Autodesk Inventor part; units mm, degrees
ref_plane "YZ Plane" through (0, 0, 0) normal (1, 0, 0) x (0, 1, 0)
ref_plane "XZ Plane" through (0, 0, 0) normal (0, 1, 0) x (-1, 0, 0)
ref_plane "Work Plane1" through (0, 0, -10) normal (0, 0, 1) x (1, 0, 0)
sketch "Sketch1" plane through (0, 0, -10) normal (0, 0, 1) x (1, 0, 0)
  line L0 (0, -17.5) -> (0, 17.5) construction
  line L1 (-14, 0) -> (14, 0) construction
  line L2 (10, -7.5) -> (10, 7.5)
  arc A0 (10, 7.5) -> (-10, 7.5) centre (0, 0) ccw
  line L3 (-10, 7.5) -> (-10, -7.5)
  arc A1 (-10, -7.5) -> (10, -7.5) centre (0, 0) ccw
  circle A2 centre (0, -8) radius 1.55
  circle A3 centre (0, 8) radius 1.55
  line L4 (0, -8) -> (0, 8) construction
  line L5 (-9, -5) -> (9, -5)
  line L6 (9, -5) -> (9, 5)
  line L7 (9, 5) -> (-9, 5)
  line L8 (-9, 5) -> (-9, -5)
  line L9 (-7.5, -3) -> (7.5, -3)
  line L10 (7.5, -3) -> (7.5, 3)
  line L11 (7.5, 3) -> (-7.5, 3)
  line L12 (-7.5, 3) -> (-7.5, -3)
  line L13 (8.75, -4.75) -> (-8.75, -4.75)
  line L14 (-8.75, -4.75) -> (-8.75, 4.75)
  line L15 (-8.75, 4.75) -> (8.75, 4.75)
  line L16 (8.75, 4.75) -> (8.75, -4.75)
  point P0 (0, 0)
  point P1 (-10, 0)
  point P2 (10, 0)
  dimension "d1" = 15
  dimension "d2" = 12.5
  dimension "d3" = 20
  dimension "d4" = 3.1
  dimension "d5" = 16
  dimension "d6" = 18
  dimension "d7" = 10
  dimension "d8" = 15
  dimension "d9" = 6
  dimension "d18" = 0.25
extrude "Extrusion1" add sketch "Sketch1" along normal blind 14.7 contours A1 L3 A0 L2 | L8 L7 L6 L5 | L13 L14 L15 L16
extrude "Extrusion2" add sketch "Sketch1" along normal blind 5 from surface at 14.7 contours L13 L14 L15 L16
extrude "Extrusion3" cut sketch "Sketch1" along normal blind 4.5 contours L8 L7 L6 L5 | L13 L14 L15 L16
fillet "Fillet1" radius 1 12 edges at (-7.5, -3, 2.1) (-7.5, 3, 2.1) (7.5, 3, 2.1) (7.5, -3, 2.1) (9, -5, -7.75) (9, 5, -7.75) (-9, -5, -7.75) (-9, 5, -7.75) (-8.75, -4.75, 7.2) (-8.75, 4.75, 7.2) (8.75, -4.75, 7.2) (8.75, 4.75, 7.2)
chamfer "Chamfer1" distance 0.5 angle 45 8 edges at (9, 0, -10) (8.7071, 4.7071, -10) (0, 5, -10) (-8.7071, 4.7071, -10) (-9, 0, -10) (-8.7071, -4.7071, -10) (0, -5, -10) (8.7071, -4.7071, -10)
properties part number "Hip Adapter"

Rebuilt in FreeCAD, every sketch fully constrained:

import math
import FreeCAD as App
import Part
import Sketcher
Q = App.Units.Quantity


def edges_at(feature, points):
    """Names of the edges that pass closest to the given points."""
    edges = feature.Shape.Edges
    near = lambda p: min(range(len(edges)), key=lambda i: edges[i].distToShape(Part.Vertex(*p))[0])
    return sorted({f"Edge{near(p) + 1}" for p in points})

doc = App.newDocument("Part")
body = doc.addObject("PartDesign::Body", "Body")

# Sketch on XY plane
sketch1 = body.newObject("Sketcher::SketchObject", "Sketch")
sketch1.AttachmentSupport = (doc.getObject("XY_Plane"), [""])
sketch1.MapMode = "FlatFace"
sketch1.AttachmentOffset = App.Placement(App.Vector(0, 0, -10), App.Rotation())
sketch1.addGeometry([
    Part.ArcOfCircle(Part.Circle(App.Vector(0, 0, 0), App.Vector(0, 0, 1), 12.5), math.radians(-143), math.radians(-37)),  # 0
    Part.LineSegment(App.Vector(10, -7.5, 0), App.Vector(10, 7.5, 0)),  # 1
    Part.ArcOfCircle(Part.Circle(App.Vector(0, 0, 0), App.Vector(0, 0, 1), 12.5), math.radians(37), math.radians(143)),  # 2
    Part.LineSegment(App.Vector(-10, 7.5, 0), App.Vector(-10, -7.5, 0)),  # 3
    Part.Circle(App.Vector(0, -8, 0), App.Vector(0, 0, 1), 1.6),  # 4
    Part.Circle(App.Vector(0, 8, 0), App.Vector(0, 0, 1), 1.6),  # 5
    Part.LineSegment(App.Vector(7.5, -3, 0), App.Vector(-7.5, -3, 0)),  # 6
    Part.LineSegment(App.Vector(-7.5, -3, 0), App.Vector(-7.5, 3, 0)),  # 7
    Part.LineSegment(App.Vector(-7.5, 3, 0), App.Vector(7.5, 3, 0)),  # 8
    Part.LineSegment(App.Vector(7.5, 3, 0), App.Vector(7.5, -3, 0)),  # 9
], False)
sketch1.addConstraint([
    Sketcher.Constraint("Coincident", 0, 2, 1, 1),
    Sketcher.Constraint("Coincident", 1, 2, 2, 1),
    Sketcher.Constraint("Coincident", 2, 2, 3, 1),
    Sketcher.Constraint("Coincident", 3, 2, 0, 1),
    Sketcher.Constraint("Coincident", 6, 2, 7, 1),
    Sketcher.Constraint("Coincident", 7, 2, 8, 1),
    Sketcher.Constraint("Coincident", 8, 2, 9, 1),
    Sketcher.Constraint("Coincident", 9, 2, 6, 1),
    Sketcher.Constraint("Vertical", 1),
    Sketcher.Constraint("Vertical", 3),
    Sketcher.Constraint("Horizontal", 6),
    Sketcher.Constraint("Vertical", 7),
    Sketcher.Constraint("Horizontal", 8),
    Sketcher.Constraint("Vertical", 9),
    Sketcher.Constraint("Coincident", 0, 3, -1, 1),
    Sketcher.Constraint("Coincident", 2, 3, -1, 1),
    Sketcher.Constraint("Equal", 0, 2),
    Sketcher.Constraint("Equal", 4, 5),
    Sketcher.Constraint("Symmetric", 4, 3, 5, 3, -1, 1),
    Sketcher.Constraint("Symmetric", 6, 2, 8, 2, -1, 1),
    Sketcher.Constraint("PointOnObject", 4, 3, -2),
    Sketcher.Constraint("Horizontal", 1, 2, 2, 2),
    Sketcher.Constraint("Equal", 8, 1),
    Sketcher.Constraint("Diameter", 4, Q("3.1 mm")),
    Sketcher.Constraint("Radius", 0, Q("12.5 mm")),
    Sketcher.Constraint("DistanceX", 6, 2, 6, 1, Q("15 mm")),
    Sketcher.Constraint("DistanceY", 7, 1, 7, 2, Q("6 mm")),
    Sketcher.Constraint("DistanceY", 4, 3, 5, 3, Q("16 mm")),
])
pad1 = body.newObject("PartDesign::Pad", "Pad")
pad1.Profile = sketch1
pad1.Length = 14.7

# Sketch on XY plane
sketch2 = body.newObject("Sketcher::SketchObject", "Sketch001")
sketch2.AttachmentSupport = (doc.getObject("XY_Plane"), [""])
sketch2.MapMode = "FlatFace"
sketch2.AttachmentOffset = App.Placement(App.Vector(0, 0, 4.7), App.Rotation())
sketch2.addGeometry([
    Part.LineSegment(App.Vector(-9, -5, 0), App.Vector(9, -5, 0)),  # 0
    Part.LineSegment(App.Vector(9, -5, 0), App.Vector(9, 5, 0)),  # 1
    Part.LineSegment(App.Vector(9, 5, 0), App.Vector(-9, 5, 0)),  # 2
    Part.LineSegment(App.Vector(-9, 5, 0), App.Vector(-9, -5, 0)),  # 3
    Part.LineSegment(App.Vector(8, -3, 0), App.Vector(-8, -3, 0)),  # 4
    Part.LineSegment(App.Vector(-8, -3, 0), App.Vector(-8, 3, 0)),  # 5
    Part.LineSegment(App.Vector(-8, 3, 0), App.Vector(8, 3, 0)),  # 6
    Part.LineSegment(App.Vector(8, 3, 0), App.Vector(8, -3, 0)),  # 7
], False)
sketch2.addConstraint([
    Sketcher.Constraint("Coincident", 0, 2, 1, 1),
    Sketcher.Constraint("Coincident", 1, 2, 2, 1),
    Sketcher.Constraint("Coincident", 2, 2, 3, 1),
    Sketcher.Constraint("Coincident", 3, 2, 0, 1),
    Sketcher.Constraint("Coincident", 4, 2, 5, 1),
    Sketcher.Constraint("Coincident", 5, 2, 6, 1),
    Sketcher.Constraint("Coincident", 6, 2, 7, 1),
    Sketcher.Constraint("Coincident", 7, 2, 4, 1),
    Sketcher.Constraint("Horizontal", 0),
    Sketcher.Constraint("Vertical", 1),
    Sketcher.Constraint("Horizontal", 2),
    Sketcher.Constraint("Vertical", 3),
    Sketcher.Constraint("Horizontal", 4),
    Sketcher.Constraint("Vertical", 5),
    Sketcher.Constraint("Horizontal", 6),
    Sketcher.Constraint("Vertical", 7),
    Sketcher.Constraint("Symmetric", 0, 2, 2, 2, -1, 1),
    Sketcher.Constraint("Symmetric", 4, 2, 6, 2, -1, 1),
    Sketcher.Constraint("DistanceX", 4, 2, 4, 1, Q("15 mm")),
    Sketcher.Constraint("DistanceY", 5, 1, 5, 2, Q("6 mm")),
    Sketcher.Constraint("DistanceX", 0, 1, 0, 2, Q("17.5 mm")),
    Sketcher.Constraint("DistanceY", 1, 1, 1, 2, Q("9.5 mm")),
])
pad2 = body.newObject("PartDesign::Pad", "Pad001")
pad2.Profile = sketch2
pad2.Length = 5

# Sketch on XY plane
sketch3 = body.newObject("Sketcher::SketchObject", "Sketch002")
sketch3.AttachmentSupport = (doc.getObject("XY_Plane"), [""])
sketch3.MapMode = "FlatFace"
sketch3.AttachmentOffset = App.Placement(App.Vector(0, 0, -10), App.Rotation())
sketch3.addGeometry([
    Part.LineSegment(App.Vector(-9, 5, 0), App.Vector(-9, -5, 0)),  # 0
    Part.LineSegment(App.Vector(-9, -5, 0), App.Vector(9, -5, 0)),  # 1
    Part.LineSegment(App.Vector(9, -5, 0), App.Vector(9, 5, 0)),  # 2
    Part.LineSegment(App.Vector(9, 5, 0), App.Vector(-9, 5, 0)),  # 3
    Part.LineSegment(App.Vector(8, -3, 0), App.Vector(-8, -3, 0)),  # 4
    Part.LineSegment(App.Vector(-8, -3, 0), App.Vector(-8, 3, 0)),  # 5
    Part.LineSegment(App.Vector(-8, 3, 0), App.Vector(8, 3, 0)),  # 6
    Part.LineSegment(App.Vector(8, 3, 0), App.Vector(8, -3, 0)),  # 7
], False)
sketch3.addConstraint([
    Sketcher.Constraint("Coincident", 0, 2, 1, 1),
    Sketcher.Constraint("Coincident", 1, 2, 2, 1),
    Sketcher.Constraint("Coincident", 2, 2, 3, 1),
    Sketcher.Constraint("Coincident", 3, 2, 0, 1),
    Sketcher.Constraint("Coincident", 4, 2, 5, 1),
    Sketcher.Constraint("Coincident", 5, 2, 6, 1),
    Sketcher.Constraint("Coincident", 6, 2, 7, 1),
    Sketcher.Constraint("Coincident", 7, 2, 4, 1),
    Sketcher.Constraint("Vertical", 0),
    Sketcher.Constraint("Horizontal", 1),
    Sketcher.Constraint("Vertical", 2),
    Sketcher.Constraint("Horizontal", 3),
    Sketcher.Constraint("Horizontal", 4),
    Sketcher.Constraint("Vertical", 5),
    Sketcher.Constraint("Horizontal", 6),
    Sketcher.Constraint("Vertical", 7),
    Sketcher.Constraint("Symmetric", 0, 2, 2, 2, -1, 1),
    Sketcher.Constraint("Symmetric", 4, 2, 6, 2, -1, 1),
    Sketcher.Constraint("DistanceX", 1, 1, 1, 2, Q("18 mm")),
    Sketcher.Constraint("DistanceX", 4, 2, 4, 1, Q("15 mm")),
    Sketcher.Constraint("DistanceY", 0, 2, 0, 1, Q("10 mm")),
    Sketcher.Constraint("DistanceY", 5, 1, 5, 2, Q("6 mm")),
])
pocket1 = body.newObject("PartDesign::Pocket", "Pocket")
pocket1.Profile = sketch3
pocket1.Length = 4.5
pocket1.Reversed = True
doc.recompute()

fillet = body.newObject("PartDesign::Fillet", "Fillet")
fillet.Base = (pocket1, edges_at(pocket1, [
    (-7.5, -3, 2.1),
    (-7.5, 3, 2.1),
    (7.5, 3, 2.1),
    (7.5, -3, 2.1),
    (9, -5, -7.75),
    (9, 5, -7.75),
    (-9, -5, -7.75),
    (-9, 5, -7.75),
    (-8.75, -4.75, 7.2),
    (-8.75, 4.75, 7.2),
    (8.75, -4.75, 7.2),
    (8.75, 4.75, 7.2),
]))
fillet.Radius = 1
doc.recompute()

chamfer = body.newObject("PartDesign::Chamfer", "Chamfer")
chamfer.Base = (fillet, edges_at(fillet, [
    (9, 0, -10),
    (8.707, 4.707, -10),
    (0, 5, -10),
    (-8.707, 4.707, -10),
    (-9, 0, -10),
    (-8.707, -4.707, -10),
    (0, -5, -10),
    (8.707, -4.707, -10),
]))
chamfer.Size = 0.5

doc.recompute()
